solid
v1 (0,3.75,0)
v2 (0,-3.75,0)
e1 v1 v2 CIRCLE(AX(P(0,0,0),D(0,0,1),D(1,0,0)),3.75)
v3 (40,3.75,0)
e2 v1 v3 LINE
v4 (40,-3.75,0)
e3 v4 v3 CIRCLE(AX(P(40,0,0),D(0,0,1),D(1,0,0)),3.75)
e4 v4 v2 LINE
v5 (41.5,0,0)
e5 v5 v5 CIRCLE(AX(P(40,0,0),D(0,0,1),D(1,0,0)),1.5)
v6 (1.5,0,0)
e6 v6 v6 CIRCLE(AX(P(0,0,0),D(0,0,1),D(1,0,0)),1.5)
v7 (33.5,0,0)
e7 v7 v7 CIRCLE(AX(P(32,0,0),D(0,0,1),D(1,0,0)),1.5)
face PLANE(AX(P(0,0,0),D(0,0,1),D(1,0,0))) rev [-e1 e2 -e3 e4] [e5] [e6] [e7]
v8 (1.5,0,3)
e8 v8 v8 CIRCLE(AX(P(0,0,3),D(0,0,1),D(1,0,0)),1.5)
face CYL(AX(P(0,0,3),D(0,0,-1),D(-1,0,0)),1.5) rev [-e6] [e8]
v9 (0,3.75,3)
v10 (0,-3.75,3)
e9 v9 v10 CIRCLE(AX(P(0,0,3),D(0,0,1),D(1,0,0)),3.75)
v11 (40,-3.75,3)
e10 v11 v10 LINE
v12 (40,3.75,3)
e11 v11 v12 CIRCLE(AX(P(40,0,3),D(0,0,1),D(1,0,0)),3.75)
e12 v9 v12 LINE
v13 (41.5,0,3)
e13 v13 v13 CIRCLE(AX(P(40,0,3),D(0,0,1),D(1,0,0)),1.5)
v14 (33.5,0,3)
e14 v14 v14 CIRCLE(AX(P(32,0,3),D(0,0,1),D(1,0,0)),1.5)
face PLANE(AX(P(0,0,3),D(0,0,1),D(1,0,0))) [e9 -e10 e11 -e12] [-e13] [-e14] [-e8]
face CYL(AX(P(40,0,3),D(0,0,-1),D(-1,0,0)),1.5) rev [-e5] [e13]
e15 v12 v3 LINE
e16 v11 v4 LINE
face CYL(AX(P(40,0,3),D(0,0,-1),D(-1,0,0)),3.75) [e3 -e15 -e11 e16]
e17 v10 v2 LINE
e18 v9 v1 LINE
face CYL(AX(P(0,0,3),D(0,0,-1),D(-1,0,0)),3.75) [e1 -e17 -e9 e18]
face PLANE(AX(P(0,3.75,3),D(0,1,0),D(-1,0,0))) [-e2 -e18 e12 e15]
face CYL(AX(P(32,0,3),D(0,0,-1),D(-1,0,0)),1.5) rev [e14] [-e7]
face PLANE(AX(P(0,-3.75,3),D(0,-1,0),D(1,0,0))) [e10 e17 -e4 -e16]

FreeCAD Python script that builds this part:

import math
import FreeCAD as App
import Part
import Sketcher
from FreeCAD import Vector

doc = App.newDocument("Part")
body = doc.addObject("PartDesign::Body", "Body")

sketch1 = body.newObject("Sketcher::SketchObject", "Sketch")
sketch1.AttachmentSupport = (doc.getObject("XY_Plane"), [""])
sketch1.MapMode = "FlatFace"
sketch1.addGeometry(Part.LineSegment(Vector(40, 3.75, 0), Vector(0, 3.75, 0)), False)
sketch1.addGeometry(Part.ArcOfCircle(Part.Circle(Vector(0, 0, 0), Vector(0, 0, 1), 3.75), math.radians(90), math.radians(270)), False)
sketch1.addGeometry(Part.LineSegment(Vector(0, -3.75, 0), Vector(40, -3.75, 0)), False)
sketch1.addGeometry(Part.ArcOfCircle(Part.Circle(Vector(40, 0, 0), Vector(0, 0, 1), 3.75), math.radians(-90), math.radians(90)), False)
sketch1.addGeometry(Part.Circle(Vector(32, 0, 0), Vector(0, 0, 1), 1.5), False)
sketch1.addGeometry(Part.Circle(Vector(40, 0, 0), Vector(0, 0, 1), 1.5), False)
sketch1.addGeometry(Part.Circle(Vector(0, 0, 0), Vector(0, 0, 1), 1.5), False)
sketch1.addConstraint(Sketcher.Constraint("Tangent", 0, 2, 1, 1))
sketch1.addConstraint(Sketcher.Constraint("Tangent", 1, 2, 2, 1))
sketch1.addConstraint(Sketcher.Constraint("Tangent", 2, 2, 3, 1))
sketch1.addConstraint(Sketcher.Constraint("Tangent", 3, 2, 0, 1))
sketch1.addConstraint(Sketcher.Constraint("Horizontal", 0))
sketch1.addConstraint(Sketcher.Constraint("Horizontal", 2))
sketch1.addConstraint(Sketcher.Constraint("Coincident", 1, 3, -1, 1))
sketch1.addConstraint(Sketcher.Constraint("Coincident", 6, 3, -1, 1))
sketch1.addConstraint(Sketcher.Constraint("Coincident", 5, 3, 3, 3))
sketch1.addConstraint(Sketcher.Constraint("Equal", 4, 5))
sketch1.addConstraint(Sketcher.Constraint("Equal", 5, 6))
sketch1.addConstraint(Sketcher.Constraint("PointOnObject", 4, 3, -1))
sketch1.addConstraint(Sketcher.Constraint("Diameter", 4, 3.0))
sketch1.addConstraint(Sketcher.Constraint("DistanceX", 0, 2, 0, 1, 40.0))
sketch1.addConstraint(Sketcher.Constraint("Radius", 1, 3.75))
sketch1.addConstraint(Sketcher.Constraint("DistanceX", -1, 1, 4, 3, 32.0))
pad1 = body.newObject("PartDesign::Pad", "Pad")
pad1.Profile = sketch1
pad1.Length = 3

doc.recompute()
